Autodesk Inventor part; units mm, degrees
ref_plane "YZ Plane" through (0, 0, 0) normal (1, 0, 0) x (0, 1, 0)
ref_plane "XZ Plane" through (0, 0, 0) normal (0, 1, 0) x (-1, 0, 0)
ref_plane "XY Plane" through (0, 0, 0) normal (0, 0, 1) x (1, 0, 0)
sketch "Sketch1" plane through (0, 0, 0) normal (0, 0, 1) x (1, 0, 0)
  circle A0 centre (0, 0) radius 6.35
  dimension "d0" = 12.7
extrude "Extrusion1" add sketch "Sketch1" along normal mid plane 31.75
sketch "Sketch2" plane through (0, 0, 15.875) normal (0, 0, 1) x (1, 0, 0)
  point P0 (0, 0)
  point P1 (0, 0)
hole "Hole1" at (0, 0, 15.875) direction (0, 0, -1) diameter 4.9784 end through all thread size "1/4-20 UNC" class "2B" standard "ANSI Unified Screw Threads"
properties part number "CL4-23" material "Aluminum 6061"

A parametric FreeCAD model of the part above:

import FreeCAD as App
import Part
import Sketcher
from FreeCAD import Vector
Q = App.Units.Quantity

doc = App.newDocument("Part")
params = doc.addObject("Spreadsheet::Sheet", "Params")
for row, (alias, value) in enumerate([
    ("sketch1_diameter", "0.5 in"),
    ("pad1_length", "1.25 in"),
    ("sketch2_diameter", "0.196 in"),
    ("hole_diameter", "0.196 in"),
], start=1):
    params.set(f"A{row}", alias)
    params.set(f"B{row}", "=" + value)
    params.setAlias(f"B{row}", alias)

body = doc.addObject("PartDesign::Body", "Body")

# Sketch on XY plane
sketch1 = body.newObject("Sketcher::SketchObject", "Sketch")
sketch1.AttachmentSupport = (doc.getObject("XY_Plane"), [""])
sketch1.MapMode = "FlatFace"
sketch1.addGeometry(Part.Circle(Vector(0, 0, 0), Vector(0, 0, 1), 6), False)
sketch1.addConstraint([
    Sketcher.Constraint("Coincident", 0, 3, -1, 1),
    Sketcher.Constraint("Diameter", 0, Q("0.5 in")),
])
sketch1.setExpression("Constraints[1]", "Params.sketch1_diameter")
pad1 = body.newObject("PartDesign::Pad", "Pad")
pad1.Profile = sketch1
pad1.setExpression("Length", "Params.pad1_length")
pad1.Midplane = True

# Sketch on XY plane
sketch2 = body.newObject("Sketcher::SketchObject", "Sketch001")
sketch2.AttachmentSupport = (doc.getObject("XY_Plane"), [""])
sketch2.MapMode = "FlatFace"
sketch2.AttachmentOffset = App.Placement(Vector(0, 0, 0.625 * 25.4), App.Rotation())
sketch2.addGeometry(Part.Circle(Vector(0, 0, 0), Vector(0, 0, 1), 2.5), False)
sketch2.addConstraint([
    Sketcher.Constraint("Coincident", 0, 3, -1, 1),
    Sketcher.Constraint("Diameter", 0, Q("0.196 in")),
])
sketch2.setExpression("Constraints[1]", "Params.sketch2_diameter")
doc.recompute()
hole = body.newObject("PartDesign::Hole", "Hole")
hole.Profile = sketch2
hole.ThreadType = "None"
hole.setExpression("Diameter", "Params.hole_diameter")
hole.DepthType = "ThroughAll"

doc.recompute()
